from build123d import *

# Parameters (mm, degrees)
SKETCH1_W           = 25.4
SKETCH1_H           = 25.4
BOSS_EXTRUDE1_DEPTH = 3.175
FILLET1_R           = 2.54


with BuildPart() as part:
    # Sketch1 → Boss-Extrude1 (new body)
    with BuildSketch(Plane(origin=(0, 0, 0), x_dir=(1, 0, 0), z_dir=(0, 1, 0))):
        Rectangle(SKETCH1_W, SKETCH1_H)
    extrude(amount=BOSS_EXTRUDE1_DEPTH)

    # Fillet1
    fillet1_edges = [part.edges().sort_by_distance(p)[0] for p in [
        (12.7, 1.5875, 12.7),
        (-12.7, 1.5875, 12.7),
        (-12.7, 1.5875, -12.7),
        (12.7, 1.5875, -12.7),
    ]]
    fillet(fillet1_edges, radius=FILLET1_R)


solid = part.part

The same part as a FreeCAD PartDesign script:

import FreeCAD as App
import Part
import Sketcher
Q = App.Units.Quantity


def edges_at(feature, points):
    """Names of the edges that pass closest to the given points."""
    edges = feature.Shape.Edges
    near = lambda p: min(range(len(edges)), key=lambda i: edges[i].distToShape(Part.Vertex(*p))[0])
    return sorted({f"Edge{near(p) + 1}" for p in points})

doc = App.newDocument("Part")
body = doc.addObject("PartDesign::Body", "Body")

# Sketch on XZ plane
sketch1 = body.newObject("Sketcher::SketchObject", "Sketch")
sketch1.AttachmentSupport = (doc.getObject("XZ_Plane"), [""])
sketch1.MapMode = "FlatFace"
sketch1.addGeometry(Part.LineSegment(App.Vector(-12.7, -12.7, 0), App.Vector(-12.7, 12.7, 0)), False)
sketch1.addGeometry(Part.LineSegment(App.Vector(-12.7, 12.7, 0), App.Vector(12.7, 12.7, 0)), False)
sketch1.addGeometry(Part.LineSegment(App.Vector(12.7, 12.7, 0), App.Vector(12.7, -12.7, 0)), False)
sketch1.addGeometry(Part.LineSegment(App.Vector(12.7, -12.7, 0), App.Vector(-12.7, -12.7, 0)), False)
sketch1.addConstraint(Sketcher.Constraint("Coincident", 0, 2, 1, 1))
sketch1.addConstraint(Sketcher.Constraint("Coincident", 1, 2, 2, 1))
sketch1.addConstraint(Sketcher.Constraint("Coincident", 2, 2, 3, 1))
sketch1.addConstraint(Sketcher.Constraint("Coincident", 3, 2, 0, 1))
sketch1.addConstraint(Sketcher.Constraint("Vertical", 0))
sketch1.addConstraint(Sketcher.Constraint("Horizontal", 1))
sketch1.addConstraint(Sketcher.Constraint("Vertical", 2))
sketch1.addConstraint(Sketcher.Constraint("Horizontal", 3))
sketch1.addConstraint(Sketcher.Constraint("Symmetric", 0, 2, 2, 2, -1, 1))
sketch1.addConstraint(Sketcher.Constraint("Equal", 3, 0))
sketch1.addConstraint(Sketcher.Constraint("DistanceX", 1, 1, 1, 2, Q("1 in")))
pad1 = body.newObject("PartDesign::Pad", "Pad")
pad1.Profile = sketch1
pad1.Length = Q("0.125 in")
pad1.Reversed = True
doc.recompute()

fillet = body.newObject("PartDesign::Fillet", "Fillet")
fillet.Base = (pad1, edges_at(pad1, [
    (12.7, 1.587, 12.7),
    (-12.7, 1.587, 12.7),
    (-12.7, 1.587, -12.7),
    (12.7, 1.587, -12.7),
]))
fillet.Radius = Q("0.1 in")

doc.recompute()
